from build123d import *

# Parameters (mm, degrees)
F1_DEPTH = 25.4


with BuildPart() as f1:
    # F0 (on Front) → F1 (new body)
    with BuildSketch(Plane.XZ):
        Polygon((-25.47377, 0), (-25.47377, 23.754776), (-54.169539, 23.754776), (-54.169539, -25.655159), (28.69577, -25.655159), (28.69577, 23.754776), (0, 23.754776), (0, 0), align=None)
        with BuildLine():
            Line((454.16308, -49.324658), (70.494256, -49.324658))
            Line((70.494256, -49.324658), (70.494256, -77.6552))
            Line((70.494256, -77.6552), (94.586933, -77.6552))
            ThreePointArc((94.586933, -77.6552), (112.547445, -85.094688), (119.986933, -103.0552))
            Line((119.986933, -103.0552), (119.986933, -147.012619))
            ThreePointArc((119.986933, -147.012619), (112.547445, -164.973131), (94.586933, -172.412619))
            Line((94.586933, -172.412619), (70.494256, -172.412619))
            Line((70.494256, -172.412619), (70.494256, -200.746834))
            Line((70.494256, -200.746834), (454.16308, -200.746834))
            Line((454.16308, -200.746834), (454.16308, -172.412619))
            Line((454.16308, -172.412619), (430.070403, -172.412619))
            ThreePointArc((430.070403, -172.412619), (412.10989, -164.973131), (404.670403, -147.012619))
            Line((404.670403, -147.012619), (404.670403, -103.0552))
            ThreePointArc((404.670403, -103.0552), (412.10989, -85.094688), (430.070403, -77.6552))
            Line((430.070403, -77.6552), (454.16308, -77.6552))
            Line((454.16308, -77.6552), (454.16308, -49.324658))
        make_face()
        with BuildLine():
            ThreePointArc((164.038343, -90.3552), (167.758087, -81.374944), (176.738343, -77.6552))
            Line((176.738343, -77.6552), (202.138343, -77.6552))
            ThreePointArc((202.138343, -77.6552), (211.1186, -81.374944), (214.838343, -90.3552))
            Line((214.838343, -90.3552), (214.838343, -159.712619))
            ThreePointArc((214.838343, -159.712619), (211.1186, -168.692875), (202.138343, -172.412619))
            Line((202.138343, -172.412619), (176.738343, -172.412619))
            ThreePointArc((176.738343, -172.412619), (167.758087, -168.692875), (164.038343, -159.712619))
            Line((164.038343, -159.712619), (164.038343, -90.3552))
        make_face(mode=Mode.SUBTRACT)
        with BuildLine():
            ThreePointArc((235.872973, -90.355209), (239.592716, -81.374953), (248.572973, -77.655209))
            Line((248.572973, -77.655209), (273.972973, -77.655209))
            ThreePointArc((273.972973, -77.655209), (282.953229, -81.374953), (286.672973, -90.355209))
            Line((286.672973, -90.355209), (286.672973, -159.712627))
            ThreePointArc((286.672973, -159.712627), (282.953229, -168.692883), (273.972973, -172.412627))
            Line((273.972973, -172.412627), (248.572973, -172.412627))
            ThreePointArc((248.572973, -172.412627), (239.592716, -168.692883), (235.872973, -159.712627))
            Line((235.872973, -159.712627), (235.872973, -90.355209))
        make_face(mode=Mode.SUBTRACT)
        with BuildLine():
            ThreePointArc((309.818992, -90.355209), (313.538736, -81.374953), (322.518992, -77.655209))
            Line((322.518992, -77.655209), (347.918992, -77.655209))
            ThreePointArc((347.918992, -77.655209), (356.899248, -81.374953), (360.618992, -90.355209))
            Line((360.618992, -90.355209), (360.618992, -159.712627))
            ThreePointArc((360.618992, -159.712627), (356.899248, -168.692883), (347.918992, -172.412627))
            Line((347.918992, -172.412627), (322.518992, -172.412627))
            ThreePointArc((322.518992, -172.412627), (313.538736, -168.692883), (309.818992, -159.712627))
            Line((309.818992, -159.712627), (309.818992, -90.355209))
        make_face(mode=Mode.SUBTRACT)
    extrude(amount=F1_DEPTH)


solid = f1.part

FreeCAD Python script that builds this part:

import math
import FreeCAD as App
import Part
import Sketcher
Q = App.Units.Quantity

doc = App.newDocument("Part")
body = doc.addObject("PartDesign::Body", "Body")
body.AllowCompound = True

# Sketch on XZ plane
sketch1 = body.newObject("Sketcher::SketchObject", "Sketch")
sketch1.AttachmentSupport = (doc.getObject("XZ_Plane"), [""])
sketch1.MapMode = "FlatFace"
sketch1.addGeometry(Part.LineSegment(App.Vector(-25, 0, 0), App.Vector(-25, 24, 0)), False)
sketch1.addGeometry(Part.LineSegment(App.Vector(-25, 24, 0), App.Vector(-54, 24, 0)), False)
sketch1.addGeometry(Part.LineSegment(App.Vector(-54, 24, 0), App.Vector(-54, -26, 0)), False)
sketch1.addGeometry(Part.LineSegment(App.Vector(-54, -26, 0), App.Vector(29, -26, 0)), False)
sketch1.addGeometry(Part.LineSegment(App.Vector(29, -26, 0), App.Vector(29, 24, 0)), False)
sketch1.addGeometry(Part.LineSegment(App.Vector(29, 24, 0), App.Vector(0, 24, 0)), False)
sketch1.addGeometry(Part.LineSegment(App.Vector(0, 24, 0), App.Vector(0, 0, 0)), False)
sketch1.addGeometry(Part.LineSegment(App.Vector(0, 0, 0), App.Vector(-25, 0, 0)), False)
sketch1.addGeometry(Part.LineSegment(App.Vector(454, -49, 0), App.Vector(70, -49, 0)), False)
sketch1.addGeometry(Part.LineSegment(App.Vector(70, -49, 0), App.Vector(70, -78, 0)), False)
sketch1.addGeometry(Part.LineSegment(App.Vector(70, -78, 0), App.Vector(95, -78, 0)), False)
sketch1.addGeometry(Part.ArcOfCircle(Part.Circle(App.Vector(95, -103, 0), App.Vector(0, 0, 1), 25), math.radians(0), math.radians(90)), False)
sketch1.addGeometry(Part.LineSegment(App.Vector(120, -103, 0), App.Vector(120, -147, 0)), False)
sketch1.addGeometry(Part.ArcOfCircle(Part.Circle(App.Vector(95, -147, 0), App.Vector(0, 0, 1), 25), math.radians(-90), math.radians(0)), False)
sketch1.addGeometry(Part.LineSegment(App.Vector(95, -172, 0), App.Vector(70, -172, 0)), False)
sketch1.addGeometry(Part.LineSegment(App.Vector(70, -172, 0), App.Vector(70, -201, 0)), False)
sketch1.addGeometry(Part.LineSegment(App.Vector(70, -201, 0), App.Vector(454, -201, 0)), False)
sketch1.addGeometry(Part.LineSegment(App.Vector(454, -201, 0), App.Vector(454, -172, 0)), False)
sketch1.addGeometry(Part.LineSegment(App.Vector(454, -172, 0), App.Vector(430, -172, 0)), False)
sketch1.addGeometry(Part.ArcOfCircle(Part.Circle(App.Vector(430, -147, 0), App.Vector(0, 0, 1), 25), math.radians(180), math.radians(270)), False)
sketch1.addGeometry(Part.LineSegment(App.Vector(405, -147, 0), App.Vector(405, -103, 0)), False)
sketch1.addGeometry(Part.ArcOfCircle(Part.Circle(App.Vector(430, -103, 0), App.Vector(0, 0, 1), 25), math.radians(90), math.radians(180)), False)
sketch1.addGeometry(Part.LineSegment(App.Vector(430, -78, 0), App.Vector(454, -78, 0)), False)
sketch1.addGeometry(Part.LineSegment(App.Vector(454, -78, 0), App.Vector(454, -49, 0)), False)
sketch1.addGeometry(Part.LineSegment(App.Vector(236, -160, 0), App.Vector(236, -90, 0)), False)
sketch1.addGeometry(Part.ArcOfCircle(Part.Circle(App.Vector(249, -90, 0), App.Vector(0, 0, 1), 13), math.radians(90), math.radians(180)), False)
sketch1.addGeometry(Part.LineSegment(App.Vector(249, -78, 0), App.Vector(274, -78, 0)), False)
sketch1.addGeometry(Part.ArcOfCircle(Part.Circle(App.Vector(274, -90, 0), App.Vector(0, 0, 1), 13), math.radians(0), math.radians(90)), False)
sketch1.addGeometry(Part.LineSegment(App.Vector(287, -90, 0), App.Vector(287, -160, 0)), False)
sketch1.addGeometry(Part.ArcOfCircle(Part.Circle(App.Vector(274, -160, 0), App.Vector(0, 0, 1), 13), math.radians(-90), math.radians(0)), False)
sketch1.addGeometry(Part.LineSegment(App.Vector(274, -172, 0), App.Vector(249, -172, 0)), False)
sketch1.addGeometry(Part.ArcOfCircle(Part.Circle(App.Vector(249, -160, 0), App.Vector(0, 0, 1), 13), math.radians(180), math.radians(270)), False)
sketch1.addGeometry(Part.LineSegment(App.Vector(310, -160, 0), App.Vector(310, -90, 0)), False)
sketch1.addGeometry(Part.ArcOfCircle(Part.Circle(App.Vector(323, -90, 0), App.Vector(0, 0, 1), 13), math.radians(90), math.radians(180)), False)
sketch1.addGeometry(Part.LineSegment(App.Vector(323, -78, 0), App.Vector(348, -78, 0)), False)
sketch1.addGeometry(Part.ArcOfCircle(Part.Circle(App.Vector(348, -90, 0), App.Vector(0, 0, 1), 13), math.radians(0), math.radians(90)), False)
sketch1.addGeometry(Part.LineSegment(App.Vector(361, -90, 0), App.Vector(361, -160, 0)), False)
sketch1.addGeometry(Part.ArcOfCircle(Part.Circle(App.Vector(348, -160, 0), App.Vector(0, 0, 1), 13), math.radians(-90), math.radians(0)), False)
sketch1.addGeometry(Part.LineSegment(App.Vector(348, -172, 0), App.Vector(323, -172, 0)), False)
sketch1.addGeometry(Part.ArcOfCircle(Part.Circle(App.Vector(323, -160, 0), App.Vector(0, 0, 1), 13), math.radians(-180), math.radians(-90)), False)
sketch1.addGeometry(Part.LineSegment(App.Vector(164, -160, 0), App.Vector(164, -90, 0)), False)
sketch1.addGeometry(Part.ArcOfCircle(Part.Circle(App.Vector(177, -90, 0), App.Vector(0, 0, 1), 13), math.radians(90), math.radians(180)), False)
sketch1.addGeometry(Part.LineSegment(App.Vector(177, -78, 0), App.Vector(202, -78, 0)), False)
sketch1.addGeometry(Part.ArcOfCircle(Part.Circle(App.Vector(202, -90, 0), App.Vector(0, 0, 1), 13), math.radians(0), math.radians(90)), False)
sketch1.addGeometry(Part.LineSegment(App.Vector(215, -90, 0), App.Vector(215, -160, 0)), False)
sketch1.addGeometry(Part.ArcOfCircle(Part.Circle(App.Vector(202, -160, 0), App.Vector(0, 0, 1), 13), math.radians(-90), math.radians(0)), False)
sketch1.addGeometry(Part.LineSegment(App.Vector(202, -172, 0), App.Vector(177, -172, 0)), False)
sketch1.addGeometry(Part.ArcOfCircle(Part.Circle(App.Vector(177, -160, 0), App.Vector(0, 0, 1), 13), math.radians(-180), math.radians(-90)), False)
sketch1.addConstraint(Sketcher.Constraint("Coincident", 0, 2, 1, 1))
sketch1.addConstraint(Sketcher.Constraint("Coincident", 1, 2, 2, 1))
sketch1.addConstraint(Sketcher.Constraint("Coincident", 2, 2, 3, 1))
sketch1.addConstraint(Sketcher.Constraint("Coincident", 3, 2, 4, 1))
sketch1.addConstraint(Sketcher.Constraint("Coincident", 4, 2, 5, 1))
sketch1.addConstraint(Sketcher.Constraint("Coincident", 5, 2, 6, 1))
sketch1.addConstraint(Sketcher.Constraint("Coincident", 6, 2, 7, 1))
sketch1.addConstraint(Sketcher.Constraint("Coincident", 7, 2, 0, 1))
sketch1.addConstraint(Sketcher.Constraint("Coincident", 8, 2, 9, 1))
sketch1.addConstraint(Sketcher.Constraint("Coincident", 9, 2, 10, 1))
sketch1.addConstraint(Sketcher.Constraint("Tangent", 10, 2, 11, 2))
sketch1.addConstraint(Sketcher.Constraint("Tangent", 11, 1, 12, 1))
sketch1.addConstraint(Sketcher.Constraint("Tangent", 12, 2, 13, 2))
sketch1.addConstraint(Sketcher.Constraint("Tangent", 13, 1, 14, 1))
sketch1.addConstraint(Sketcher.Constraint("Coincident", 14, 2, 15, 1))
sketch1.addConstraint(Sketcher.Constraint("Coincident", 15, 2, 16, 1))
sketch1.addConstraint(Sketcher.Constraint("Coincident", 16, 2, 17, 1))
sketch1.addConstraint(Sketcher.Constraint("Coincident", 17, 2, 18, 1))
sketch1.addConstraint(Sketcher.Constraint("Tangent", 18, 2, 19, 2))
sketch1.addConstraint(Sketcher.Constraint("Tangent", 19, 1, 20, 1))
sketch1.addConstraint(Sketcher.Constraint("Tangent", 20, 2, 21, 2))
sketch1.addConstraint(Sketcher.Constraint("Tangent", 21, 1, 22, 1))
sketch1.addConstraint(Sketcher.Constraint("Coincident", 22, 2, 23, 1))
sketch1.addConstraint(Sketcher.Constraint("Coincident", 23, 2, 8, 1))
sketch1.addConstraint(Sketcher.Constraint("Tangent", 24, 2, 25, 2))
sketch1.addConstraint(Sketcher.Constraint("Tangent", 25, 1, 26, 1))
sketch1.addConstraint(Sketcher.Constraint("Tangent", 26, 2, 27, 2))
sketch1.addConstraint(Sketcher.Constraint("Tangent", 27, 1, 28, 1))
sketch1.addConstraint(Sketcher.Constraint("Tangent", 28, 2, 29, 2))
sketch1.addConstraint(Sketcher.Constraint("Tangent", 29, 1, 30, 1))
sketch1.addConstraint(Sketcher.Constraint("Tangent", 30, 2, 31, 2))
sketch1.addConstraint(Sketcher.Constraint("Tangent", 31, 1, 24, 1))
sketch1.addConstraint(Sketcher.Constraint("Tangent", 32, 2, 33, 2))
sketch1.addConstraint(Sketcher.Constraint("Tangent", 33, 1, 34, 1))
sketch1.addConstraint(Sketcher.Constraint("Tangent", 34, 2, 35, 2))
sketch1.addConstraint(Sketcher.Constraint("Tangent", 35, 1, 36, 1))
sketch1.addConstraint(Sketcher.Constraint("Tangent", 36, 2, 37, 2))
sketch1.addConstraint(Sketcher.Constraint("Tangent", 37, 1, 38, 1))
sketch1.addConstraint(Sketcher.Constraint("Tangent", 38, 2, 39, 2))
sketch1.addConstraint(Sketcher.Constraint("Tangent", 39, 1, 32, 1))
sketch1.addConstraint(Sketcher.Constraint("Tangent", 40, 2, 41, 2))
sketch1.addConstraint(Sketcher.Constraint("Tangent", 41, 1, 42, 1))
sketch1.addConstraint(Sketcher.Constraint("Tangent", 42, 2, 43, 2))
sketch1.addConstraint(Sketcher.Constraint("Tangent", 43, 1, 44, 1))
sketch1.addConstraint(Sketcher.Constraint("Tangent", 44, 2, 45, 2))
sketch1.addConstraint(Sketcher.Constraint("Tangent", 45, 1, 46, 1))
sketch1.addConstraint(Sketcher.Constraint("Tangent", 46, 2, 47, 2))
sketch1.addConstraint(Sketcher.Constraint("Tangent", 47, 1, 40, 1))
sketch1.addConstraint(Sketcher.Constraint("Vertical", 0))
sketch1.addConstraint(Sketcher.Constraint("Horizontal", 1))
sketch1.addConstraint(Sketcher.Constraint("Vertical", 2))
sketch1.addConstraint(Sketcher.Constraint("Horizontal", 3))
sketch1.addConstraint(Sketcher.Constraint("Vertical", 4))
sketch1.addConstraint(Sketcher.Constraint("Horizontal", 5))
sketch1.addConstraint(Sketcher.Constraint("Vertical", 6))
sketch1.addConstraint(Sketcher.Constraint("Horizontal", 7))
sketch1.addConstraint(Sketcher.Constraint("Horizontal", 8))
sketch1.addConstraint(Sketcher.Constraint("Vertical", 9))
sketch1.addConstraint(Sketcher.Constraint("Horizontal", 10))
sketch1.addConstraint(Sketcher.Constraint("Vertical", 12))
sketch1.addConstraint(Sketcher.Constraint("Horizontal", 14))
sketch1.addConstraint(Sketcher.Constraint("Vertical", 15))
sketch1.addConstraint(Sketcher.Constraint("Horizontal", 16))
sketch1.addConstraint(Sketcher.Constraint("Vertical", 17))
sketch1.addConstraint(Sketcher.Constraint("Horizontal", 18))
sketch1.addConstraint(Sketcher.Constraint("Vertical", 20))
sketch1.addConstraint(Sketcher.Constraint("Horizontal", 22))
sketch1.addConstraint(Sketcher.Constraint("Vertical", 23))
sketch1.addConstraint(Sketcher.Constraint("Vertical", 24))
sketch1.addConstraint(Sketcher.Constraint("Horizontal", 26))
sketch1.addConstraint(Sketcher.Constraint("Vertical", 28))
sketch1.addConstraint(Sketcher.Constraint("Horizontal", 30))
sketch1.addConstraint(Sketcher.Constraint("Vertical", 32))
sketch1.addConstraint(Sketcher.Constraint("Horizontal", 34))
sketch1.addConstraint(Sketcher.Constraint("Vertical", 36))
sketch1.addConstraint(Sketcher.Constraint("Horizontal", 38))
sketch1.addConstraint(Sketcher.Constraint("Vertical", 40))
sketch1.addConstraint(Sketcher.Constraint("Horizontal", 42))
sketch1.addConstraint(Sketcher.Constraint("Vertical", 44))
sketch1.addConstraint(Sketcher.Constraint("Horizontal", 46))
sketch1.addConstraint(Sketcher.Constraint("Coincident", 6, 2, -1, 1))
sketch1.addConstraint(Sketcher.Constraint("Equal", 11, 13))
sketch1.addConstraint(Sketcher.Constraint("Equal", 13, 19))
sketch1.addConstraint(Sketcher.Constraint("Equal", 19, 21))
sketch1.addConstraint(Sketcher.Constraint("Equal", 25, 27))
sketch1.addConstraint(Sketcher.Constraint("Equal", 27, 29))
sketch1.addConstraint(Sketcher.Constraint("Equal", 29, 31))
sketch1.addConstraint(Sketcher.Constraint("Equal", 31, 33))
sketch1.addConstraint(Sketcher.Constraint("Equal", 33, 35))
sketch1.addConstraint(Sketcher.Constraint("Equal", 35, 37))
sketch1.addConstraint(Sketcher.Constraint("Equal", 37, 39))
sketch1.addConstraint(Sketcher.Constraint("Equal", 39, 41))
sketch1.addConstraint(Sketcher.Constraint("Equal", 41, 43))
sketch1.addConstraint(Sketcher.Constraint("Equal", 43, 45))
sketch1.addConstraint(Sketcher.Constraint("Equal", 45, 47))
sketch1.addConstraint(Sketcher.Constraint("Horizontal", 13, 3, 19, 3))
sketch1.addConstraint(Sketcher.Constraint("Horizontal", 11, 3, 21, 3))
sketch1.addConstraint(Sketcher.Constraint("Horizontal", 27, 3, 33, 3))
sketch1.addConstraint(Sketcher.Constraint("Horizontal", 31, 3, 37, 3))
sketch1.addConstraint(Sketcher.Constraint("Horizontal", 1, 2, 4, 2))
sketch1.addConstraint(Sketcher.Constraint("Horizontal", 22, 2, 41, 1))
sketch1.addConstraint(Sketcher.Constraint("Horizontal", 18, 2, 45, 1))
sketch1.addConstraint(Sketcher.Constraint("Vertical", 9, 2, 14, 2))
sketch1.addConstraint(Sketcher.Constraint("Vertical", 17, 2, 22, 2))
sketch1.addConstraint(Sketcher.Constraint("Equal", 1, 5))
sketch1.addConstraint(Sketcher.Constraint("Equal", 14, 18))
sketch1.addConstraint(Sketcher.Constraint("Equal", 30, 34))
sketch1.addConstraint(Sketcher.Constraint("Equal", 38, 42))
sketch1.addConstraint(Sketcher.Constraint("Equal", 36, 40))
sketch1.addConstraint(Sketcher.Constraint("Radius", 11, Q("1 in")))
sketch1.addConstraint(Sketcher.Constraint("Radius", 25, Q("0.4999999 in")))
sketch1.addConstraint(Sketcher.Constraint("DistanceX", 26, 1, 26, 2, Q("1 in")))
sketch1.addConstraint(Sketcher.Constraint("DistanceX", 1, 2, 1, 1, 28.695769))
sketch1.addConstraint(Sketcher.Constraint("DistanceX", 3, 1, 3, 2, 82.865309))
sketch1.addConstraint(Sketcher.Constraint("DistanceY", 9, 2, 9, 1, 28.330542))
sketch1.addConstraint(Sketcher.Constraint("DistanceY", 12, 2, 12, 1, 43.957419))
sketch1.addConstraint(Sketcher.Constraint("DistanceY", 11, 3, -1, 1, 103.055201))
sketch1.addConstraint(Sketcher.Constraint("DistanceX", 8, 2, 8, 1, 383.668824))
sketch1.addConstraint(Sketcher.Constraint("DistanceX", 10, 1, 10, 2, 24.092677))
sketch1.addConstraint(Sketcher.Constraint("DistanceY", 0, 1, 0, 2, 23.754776))
sketch1.addConstraint(Sketcher.Constraint("DistanceY", 2, 2, 2, 1, 49.409935))
sketch1.addConstraint(Sketcher.Constraint("DistanceY", 15, 2, 15, 1, 28.334215))
sketch1.addConstraint(Sketcher.Constraint("DistanceX", -1, 1, 25, 3, 248.572972))
sketch1.addConstraint(Sketcher.Constraint("DistanceY", 27, 3, -1, 1, 90.355209))
sketch1.addConstraint(Sketcher.Constraint("DistanceX", -1, 1, 35, 3, 347.918992))
sketch1.addConstraint(Sketcher.Constraint("DistanceX", -1, 1, 16, 2, 454.16308))
sketch1.addConstraint(Sketcher.Constraint("DistanceX", -1, 1, 41, 3, 176.738343))
pad1 = body.newObject("PartDesign::Pad", "Pad")
pad1.Profile = sketch1
pad1.Length = Q("1 in")

doc.recompute()
